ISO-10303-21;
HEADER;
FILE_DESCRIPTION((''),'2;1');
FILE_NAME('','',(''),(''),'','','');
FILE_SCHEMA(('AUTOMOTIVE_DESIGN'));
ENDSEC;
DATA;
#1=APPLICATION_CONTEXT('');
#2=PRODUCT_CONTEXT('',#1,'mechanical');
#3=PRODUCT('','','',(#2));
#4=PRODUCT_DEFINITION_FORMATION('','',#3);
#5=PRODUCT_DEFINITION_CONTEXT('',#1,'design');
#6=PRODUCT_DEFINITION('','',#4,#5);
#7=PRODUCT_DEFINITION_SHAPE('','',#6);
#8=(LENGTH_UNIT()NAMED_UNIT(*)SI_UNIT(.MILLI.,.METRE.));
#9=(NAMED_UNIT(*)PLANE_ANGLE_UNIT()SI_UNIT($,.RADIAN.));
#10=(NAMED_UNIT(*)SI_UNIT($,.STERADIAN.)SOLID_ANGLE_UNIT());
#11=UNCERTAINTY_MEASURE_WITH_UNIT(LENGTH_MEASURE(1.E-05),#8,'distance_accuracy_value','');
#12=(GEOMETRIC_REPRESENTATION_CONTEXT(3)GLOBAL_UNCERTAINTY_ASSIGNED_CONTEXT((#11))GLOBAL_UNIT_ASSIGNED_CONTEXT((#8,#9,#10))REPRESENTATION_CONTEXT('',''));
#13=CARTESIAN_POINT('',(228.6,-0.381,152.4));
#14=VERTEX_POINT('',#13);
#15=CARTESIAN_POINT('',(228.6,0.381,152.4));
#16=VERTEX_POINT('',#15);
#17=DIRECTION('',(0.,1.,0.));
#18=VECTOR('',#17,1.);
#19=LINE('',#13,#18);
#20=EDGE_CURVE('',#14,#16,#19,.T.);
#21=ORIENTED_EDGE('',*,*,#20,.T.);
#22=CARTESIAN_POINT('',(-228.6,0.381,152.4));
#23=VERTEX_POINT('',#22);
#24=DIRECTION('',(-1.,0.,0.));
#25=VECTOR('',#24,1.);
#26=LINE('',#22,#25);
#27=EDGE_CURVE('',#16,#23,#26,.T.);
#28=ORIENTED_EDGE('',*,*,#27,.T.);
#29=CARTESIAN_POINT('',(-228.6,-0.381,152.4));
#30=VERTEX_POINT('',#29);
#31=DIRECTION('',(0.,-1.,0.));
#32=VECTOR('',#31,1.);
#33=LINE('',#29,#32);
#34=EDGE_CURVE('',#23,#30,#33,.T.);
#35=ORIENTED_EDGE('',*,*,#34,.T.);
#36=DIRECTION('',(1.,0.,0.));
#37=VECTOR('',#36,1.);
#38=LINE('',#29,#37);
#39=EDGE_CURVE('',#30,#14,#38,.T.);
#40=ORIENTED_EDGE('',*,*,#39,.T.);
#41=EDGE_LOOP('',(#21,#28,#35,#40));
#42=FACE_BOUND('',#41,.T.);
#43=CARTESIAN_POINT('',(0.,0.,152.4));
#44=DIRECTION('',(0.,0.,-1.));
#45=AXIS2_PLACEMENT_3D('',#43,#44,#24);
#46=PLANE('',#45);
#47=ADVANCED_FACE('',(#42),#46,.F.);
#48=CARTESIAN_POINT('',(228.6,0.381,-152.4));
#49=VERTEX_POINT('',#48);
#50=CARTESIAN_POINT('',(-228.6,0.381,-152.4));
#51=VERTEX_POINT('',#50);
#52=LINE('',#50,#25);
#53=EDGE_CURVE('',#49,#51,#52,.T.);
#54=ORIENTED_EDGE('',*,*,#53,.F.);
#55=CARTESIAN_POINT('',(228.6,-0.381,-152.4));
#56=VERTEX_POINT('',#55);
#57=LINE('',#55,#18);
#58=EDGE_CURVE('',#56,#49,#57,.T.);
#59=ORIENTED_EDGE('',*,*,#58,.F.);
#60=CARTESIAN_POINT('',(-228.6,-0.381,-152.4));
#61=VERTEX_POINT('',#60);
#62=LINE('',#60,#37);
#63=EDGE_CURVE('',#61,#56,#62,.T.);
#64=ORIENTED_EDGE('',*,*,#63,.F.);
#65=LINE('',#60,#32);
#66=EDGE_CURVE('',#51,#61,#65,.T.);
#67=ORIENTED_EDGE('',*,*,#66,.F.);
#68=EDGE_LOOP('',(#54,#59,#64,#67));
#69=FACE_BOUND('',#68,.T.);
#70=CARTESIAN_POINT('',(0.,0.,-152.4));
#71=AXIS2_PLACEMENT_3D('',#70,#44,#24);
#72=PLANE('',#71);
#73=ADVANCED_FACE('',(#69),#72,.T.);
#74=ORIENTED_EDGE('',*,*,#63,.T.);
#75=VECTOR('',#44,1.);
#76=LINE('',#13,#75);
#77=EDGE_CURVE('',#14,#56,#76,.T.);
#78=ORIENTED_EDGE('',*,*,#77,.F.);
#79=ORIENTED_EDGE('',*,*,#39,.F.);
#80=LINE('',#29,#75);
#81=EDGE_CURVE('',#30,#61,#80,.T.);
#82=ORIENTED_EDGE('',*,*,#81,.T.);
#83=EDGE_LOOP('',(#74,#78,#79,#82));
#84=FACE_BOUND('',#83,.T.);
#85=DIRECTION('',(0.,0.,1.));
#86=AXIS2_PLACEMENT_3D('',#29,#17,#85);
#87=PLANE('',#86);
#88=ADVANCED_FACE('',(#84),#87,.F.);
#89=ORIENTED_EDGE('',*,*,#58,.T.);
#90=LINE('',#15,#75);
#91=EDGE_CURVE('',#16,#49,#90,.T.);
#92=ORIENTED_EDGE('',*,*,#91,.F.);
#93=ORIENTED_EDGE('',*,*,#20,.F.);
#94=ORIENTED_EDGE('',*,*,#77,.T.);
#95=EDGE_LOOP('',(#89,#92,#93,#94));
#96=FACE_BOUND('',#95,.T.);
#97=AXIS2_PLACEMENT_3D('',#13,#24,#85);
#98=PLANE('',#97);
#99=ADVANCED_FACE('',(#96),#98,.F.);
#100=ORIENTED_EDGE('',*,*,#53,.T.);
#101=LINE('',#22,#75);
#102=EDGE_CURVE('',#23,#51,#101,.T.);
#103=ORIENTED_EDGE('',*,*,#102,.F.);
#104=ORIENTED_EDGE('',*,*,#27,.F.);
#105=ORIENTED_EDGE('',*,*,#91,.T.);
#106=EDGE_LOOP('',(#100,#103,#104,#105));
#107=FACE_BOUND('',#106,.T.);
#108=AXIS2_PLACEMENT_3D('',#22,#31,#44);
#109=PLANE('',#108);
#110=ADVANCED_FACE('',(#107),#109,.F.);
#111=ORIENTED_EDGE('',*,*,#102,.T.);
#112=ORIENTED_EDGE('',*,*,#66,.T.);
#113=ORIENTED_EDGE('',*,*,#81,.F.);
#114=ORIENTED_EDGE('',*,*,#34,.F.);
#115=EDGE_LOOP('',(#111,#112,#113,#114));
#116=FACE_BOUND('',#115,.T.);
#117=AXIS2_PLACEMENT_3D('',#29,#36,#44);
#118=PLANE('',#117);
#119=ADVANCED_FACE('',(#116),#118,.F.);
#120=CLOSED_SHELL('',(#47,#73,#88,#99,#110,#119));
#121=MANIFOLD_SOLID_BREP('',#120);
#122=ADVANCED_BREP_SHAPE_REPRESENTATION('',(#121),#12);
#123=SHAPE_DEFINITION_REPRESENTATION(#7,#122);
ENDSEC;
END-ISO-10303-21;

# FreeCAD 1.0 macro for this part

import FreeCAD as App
import Part
import Sketcher
Q = App.Units.Quantity


def add_polygon(sketch, points):
    """Adds a closed chain of lines whose ends are joined by coincident constraints."""
    first, n = sketch.GeometryCount, len(points)
    for a, b in zip(points, points[1:] + points[:1]):
        sketch.addGeometry(Part.LineSegment(App.Vector(*a, 0), App.Vector(*b, 0)), False)
    for i in range(n):
        sketch.addConstraint(Sketcher.Constraint("Coincident", first + i, 2, first + (i + 1) % n, 1))

doc = App.newDocument("Part")
body = doc.addObject("PartDesign::Body", "Body")

sketch1 = body.newObject("Sketcher::SketchObject", "Sketch")
sketch1.AttachmentSupport = (doc.getObject("XY_Plane"), [""])
sketch1.MapMode = "FlatFace"
add_polygon(sketch1, [(-228.6, 0.4), (-228.6, -0.4), (228.6, -0.4), (228.6, 0.4)])
sketch1.addConstraint(Sketcher.Constraint("Vertical", 0))
sketch1.addConstraint(Sketcher.Constraint("Horizontal", 1))
sketch1.addConstraint(Sketcher.Constraint("Vertical", 2))
sketch1.addConstraint(Sketcher.Constraint("Horizontal", 3))
sketch1.addConstraint(Sketcher.Constraint("Symmetric", 0, 2, 2, 2, -1, 1))
sketch1.addConstraint(Sketcher.Constraint("DistanceX", 1, 1, 1, 2, Q("18 in")))
sketch1.addConstraint(Sketcher.Constraint("DistanceY", 0, 2, 0, 1, Q("0.03 in")))
pad1 = body.newObject("PartDesign::Pad", "Pad")
pad1.Profile = sketch1
pad1.Length = Q("12 in")
pad1.Midplane = True

doc.recompute()
